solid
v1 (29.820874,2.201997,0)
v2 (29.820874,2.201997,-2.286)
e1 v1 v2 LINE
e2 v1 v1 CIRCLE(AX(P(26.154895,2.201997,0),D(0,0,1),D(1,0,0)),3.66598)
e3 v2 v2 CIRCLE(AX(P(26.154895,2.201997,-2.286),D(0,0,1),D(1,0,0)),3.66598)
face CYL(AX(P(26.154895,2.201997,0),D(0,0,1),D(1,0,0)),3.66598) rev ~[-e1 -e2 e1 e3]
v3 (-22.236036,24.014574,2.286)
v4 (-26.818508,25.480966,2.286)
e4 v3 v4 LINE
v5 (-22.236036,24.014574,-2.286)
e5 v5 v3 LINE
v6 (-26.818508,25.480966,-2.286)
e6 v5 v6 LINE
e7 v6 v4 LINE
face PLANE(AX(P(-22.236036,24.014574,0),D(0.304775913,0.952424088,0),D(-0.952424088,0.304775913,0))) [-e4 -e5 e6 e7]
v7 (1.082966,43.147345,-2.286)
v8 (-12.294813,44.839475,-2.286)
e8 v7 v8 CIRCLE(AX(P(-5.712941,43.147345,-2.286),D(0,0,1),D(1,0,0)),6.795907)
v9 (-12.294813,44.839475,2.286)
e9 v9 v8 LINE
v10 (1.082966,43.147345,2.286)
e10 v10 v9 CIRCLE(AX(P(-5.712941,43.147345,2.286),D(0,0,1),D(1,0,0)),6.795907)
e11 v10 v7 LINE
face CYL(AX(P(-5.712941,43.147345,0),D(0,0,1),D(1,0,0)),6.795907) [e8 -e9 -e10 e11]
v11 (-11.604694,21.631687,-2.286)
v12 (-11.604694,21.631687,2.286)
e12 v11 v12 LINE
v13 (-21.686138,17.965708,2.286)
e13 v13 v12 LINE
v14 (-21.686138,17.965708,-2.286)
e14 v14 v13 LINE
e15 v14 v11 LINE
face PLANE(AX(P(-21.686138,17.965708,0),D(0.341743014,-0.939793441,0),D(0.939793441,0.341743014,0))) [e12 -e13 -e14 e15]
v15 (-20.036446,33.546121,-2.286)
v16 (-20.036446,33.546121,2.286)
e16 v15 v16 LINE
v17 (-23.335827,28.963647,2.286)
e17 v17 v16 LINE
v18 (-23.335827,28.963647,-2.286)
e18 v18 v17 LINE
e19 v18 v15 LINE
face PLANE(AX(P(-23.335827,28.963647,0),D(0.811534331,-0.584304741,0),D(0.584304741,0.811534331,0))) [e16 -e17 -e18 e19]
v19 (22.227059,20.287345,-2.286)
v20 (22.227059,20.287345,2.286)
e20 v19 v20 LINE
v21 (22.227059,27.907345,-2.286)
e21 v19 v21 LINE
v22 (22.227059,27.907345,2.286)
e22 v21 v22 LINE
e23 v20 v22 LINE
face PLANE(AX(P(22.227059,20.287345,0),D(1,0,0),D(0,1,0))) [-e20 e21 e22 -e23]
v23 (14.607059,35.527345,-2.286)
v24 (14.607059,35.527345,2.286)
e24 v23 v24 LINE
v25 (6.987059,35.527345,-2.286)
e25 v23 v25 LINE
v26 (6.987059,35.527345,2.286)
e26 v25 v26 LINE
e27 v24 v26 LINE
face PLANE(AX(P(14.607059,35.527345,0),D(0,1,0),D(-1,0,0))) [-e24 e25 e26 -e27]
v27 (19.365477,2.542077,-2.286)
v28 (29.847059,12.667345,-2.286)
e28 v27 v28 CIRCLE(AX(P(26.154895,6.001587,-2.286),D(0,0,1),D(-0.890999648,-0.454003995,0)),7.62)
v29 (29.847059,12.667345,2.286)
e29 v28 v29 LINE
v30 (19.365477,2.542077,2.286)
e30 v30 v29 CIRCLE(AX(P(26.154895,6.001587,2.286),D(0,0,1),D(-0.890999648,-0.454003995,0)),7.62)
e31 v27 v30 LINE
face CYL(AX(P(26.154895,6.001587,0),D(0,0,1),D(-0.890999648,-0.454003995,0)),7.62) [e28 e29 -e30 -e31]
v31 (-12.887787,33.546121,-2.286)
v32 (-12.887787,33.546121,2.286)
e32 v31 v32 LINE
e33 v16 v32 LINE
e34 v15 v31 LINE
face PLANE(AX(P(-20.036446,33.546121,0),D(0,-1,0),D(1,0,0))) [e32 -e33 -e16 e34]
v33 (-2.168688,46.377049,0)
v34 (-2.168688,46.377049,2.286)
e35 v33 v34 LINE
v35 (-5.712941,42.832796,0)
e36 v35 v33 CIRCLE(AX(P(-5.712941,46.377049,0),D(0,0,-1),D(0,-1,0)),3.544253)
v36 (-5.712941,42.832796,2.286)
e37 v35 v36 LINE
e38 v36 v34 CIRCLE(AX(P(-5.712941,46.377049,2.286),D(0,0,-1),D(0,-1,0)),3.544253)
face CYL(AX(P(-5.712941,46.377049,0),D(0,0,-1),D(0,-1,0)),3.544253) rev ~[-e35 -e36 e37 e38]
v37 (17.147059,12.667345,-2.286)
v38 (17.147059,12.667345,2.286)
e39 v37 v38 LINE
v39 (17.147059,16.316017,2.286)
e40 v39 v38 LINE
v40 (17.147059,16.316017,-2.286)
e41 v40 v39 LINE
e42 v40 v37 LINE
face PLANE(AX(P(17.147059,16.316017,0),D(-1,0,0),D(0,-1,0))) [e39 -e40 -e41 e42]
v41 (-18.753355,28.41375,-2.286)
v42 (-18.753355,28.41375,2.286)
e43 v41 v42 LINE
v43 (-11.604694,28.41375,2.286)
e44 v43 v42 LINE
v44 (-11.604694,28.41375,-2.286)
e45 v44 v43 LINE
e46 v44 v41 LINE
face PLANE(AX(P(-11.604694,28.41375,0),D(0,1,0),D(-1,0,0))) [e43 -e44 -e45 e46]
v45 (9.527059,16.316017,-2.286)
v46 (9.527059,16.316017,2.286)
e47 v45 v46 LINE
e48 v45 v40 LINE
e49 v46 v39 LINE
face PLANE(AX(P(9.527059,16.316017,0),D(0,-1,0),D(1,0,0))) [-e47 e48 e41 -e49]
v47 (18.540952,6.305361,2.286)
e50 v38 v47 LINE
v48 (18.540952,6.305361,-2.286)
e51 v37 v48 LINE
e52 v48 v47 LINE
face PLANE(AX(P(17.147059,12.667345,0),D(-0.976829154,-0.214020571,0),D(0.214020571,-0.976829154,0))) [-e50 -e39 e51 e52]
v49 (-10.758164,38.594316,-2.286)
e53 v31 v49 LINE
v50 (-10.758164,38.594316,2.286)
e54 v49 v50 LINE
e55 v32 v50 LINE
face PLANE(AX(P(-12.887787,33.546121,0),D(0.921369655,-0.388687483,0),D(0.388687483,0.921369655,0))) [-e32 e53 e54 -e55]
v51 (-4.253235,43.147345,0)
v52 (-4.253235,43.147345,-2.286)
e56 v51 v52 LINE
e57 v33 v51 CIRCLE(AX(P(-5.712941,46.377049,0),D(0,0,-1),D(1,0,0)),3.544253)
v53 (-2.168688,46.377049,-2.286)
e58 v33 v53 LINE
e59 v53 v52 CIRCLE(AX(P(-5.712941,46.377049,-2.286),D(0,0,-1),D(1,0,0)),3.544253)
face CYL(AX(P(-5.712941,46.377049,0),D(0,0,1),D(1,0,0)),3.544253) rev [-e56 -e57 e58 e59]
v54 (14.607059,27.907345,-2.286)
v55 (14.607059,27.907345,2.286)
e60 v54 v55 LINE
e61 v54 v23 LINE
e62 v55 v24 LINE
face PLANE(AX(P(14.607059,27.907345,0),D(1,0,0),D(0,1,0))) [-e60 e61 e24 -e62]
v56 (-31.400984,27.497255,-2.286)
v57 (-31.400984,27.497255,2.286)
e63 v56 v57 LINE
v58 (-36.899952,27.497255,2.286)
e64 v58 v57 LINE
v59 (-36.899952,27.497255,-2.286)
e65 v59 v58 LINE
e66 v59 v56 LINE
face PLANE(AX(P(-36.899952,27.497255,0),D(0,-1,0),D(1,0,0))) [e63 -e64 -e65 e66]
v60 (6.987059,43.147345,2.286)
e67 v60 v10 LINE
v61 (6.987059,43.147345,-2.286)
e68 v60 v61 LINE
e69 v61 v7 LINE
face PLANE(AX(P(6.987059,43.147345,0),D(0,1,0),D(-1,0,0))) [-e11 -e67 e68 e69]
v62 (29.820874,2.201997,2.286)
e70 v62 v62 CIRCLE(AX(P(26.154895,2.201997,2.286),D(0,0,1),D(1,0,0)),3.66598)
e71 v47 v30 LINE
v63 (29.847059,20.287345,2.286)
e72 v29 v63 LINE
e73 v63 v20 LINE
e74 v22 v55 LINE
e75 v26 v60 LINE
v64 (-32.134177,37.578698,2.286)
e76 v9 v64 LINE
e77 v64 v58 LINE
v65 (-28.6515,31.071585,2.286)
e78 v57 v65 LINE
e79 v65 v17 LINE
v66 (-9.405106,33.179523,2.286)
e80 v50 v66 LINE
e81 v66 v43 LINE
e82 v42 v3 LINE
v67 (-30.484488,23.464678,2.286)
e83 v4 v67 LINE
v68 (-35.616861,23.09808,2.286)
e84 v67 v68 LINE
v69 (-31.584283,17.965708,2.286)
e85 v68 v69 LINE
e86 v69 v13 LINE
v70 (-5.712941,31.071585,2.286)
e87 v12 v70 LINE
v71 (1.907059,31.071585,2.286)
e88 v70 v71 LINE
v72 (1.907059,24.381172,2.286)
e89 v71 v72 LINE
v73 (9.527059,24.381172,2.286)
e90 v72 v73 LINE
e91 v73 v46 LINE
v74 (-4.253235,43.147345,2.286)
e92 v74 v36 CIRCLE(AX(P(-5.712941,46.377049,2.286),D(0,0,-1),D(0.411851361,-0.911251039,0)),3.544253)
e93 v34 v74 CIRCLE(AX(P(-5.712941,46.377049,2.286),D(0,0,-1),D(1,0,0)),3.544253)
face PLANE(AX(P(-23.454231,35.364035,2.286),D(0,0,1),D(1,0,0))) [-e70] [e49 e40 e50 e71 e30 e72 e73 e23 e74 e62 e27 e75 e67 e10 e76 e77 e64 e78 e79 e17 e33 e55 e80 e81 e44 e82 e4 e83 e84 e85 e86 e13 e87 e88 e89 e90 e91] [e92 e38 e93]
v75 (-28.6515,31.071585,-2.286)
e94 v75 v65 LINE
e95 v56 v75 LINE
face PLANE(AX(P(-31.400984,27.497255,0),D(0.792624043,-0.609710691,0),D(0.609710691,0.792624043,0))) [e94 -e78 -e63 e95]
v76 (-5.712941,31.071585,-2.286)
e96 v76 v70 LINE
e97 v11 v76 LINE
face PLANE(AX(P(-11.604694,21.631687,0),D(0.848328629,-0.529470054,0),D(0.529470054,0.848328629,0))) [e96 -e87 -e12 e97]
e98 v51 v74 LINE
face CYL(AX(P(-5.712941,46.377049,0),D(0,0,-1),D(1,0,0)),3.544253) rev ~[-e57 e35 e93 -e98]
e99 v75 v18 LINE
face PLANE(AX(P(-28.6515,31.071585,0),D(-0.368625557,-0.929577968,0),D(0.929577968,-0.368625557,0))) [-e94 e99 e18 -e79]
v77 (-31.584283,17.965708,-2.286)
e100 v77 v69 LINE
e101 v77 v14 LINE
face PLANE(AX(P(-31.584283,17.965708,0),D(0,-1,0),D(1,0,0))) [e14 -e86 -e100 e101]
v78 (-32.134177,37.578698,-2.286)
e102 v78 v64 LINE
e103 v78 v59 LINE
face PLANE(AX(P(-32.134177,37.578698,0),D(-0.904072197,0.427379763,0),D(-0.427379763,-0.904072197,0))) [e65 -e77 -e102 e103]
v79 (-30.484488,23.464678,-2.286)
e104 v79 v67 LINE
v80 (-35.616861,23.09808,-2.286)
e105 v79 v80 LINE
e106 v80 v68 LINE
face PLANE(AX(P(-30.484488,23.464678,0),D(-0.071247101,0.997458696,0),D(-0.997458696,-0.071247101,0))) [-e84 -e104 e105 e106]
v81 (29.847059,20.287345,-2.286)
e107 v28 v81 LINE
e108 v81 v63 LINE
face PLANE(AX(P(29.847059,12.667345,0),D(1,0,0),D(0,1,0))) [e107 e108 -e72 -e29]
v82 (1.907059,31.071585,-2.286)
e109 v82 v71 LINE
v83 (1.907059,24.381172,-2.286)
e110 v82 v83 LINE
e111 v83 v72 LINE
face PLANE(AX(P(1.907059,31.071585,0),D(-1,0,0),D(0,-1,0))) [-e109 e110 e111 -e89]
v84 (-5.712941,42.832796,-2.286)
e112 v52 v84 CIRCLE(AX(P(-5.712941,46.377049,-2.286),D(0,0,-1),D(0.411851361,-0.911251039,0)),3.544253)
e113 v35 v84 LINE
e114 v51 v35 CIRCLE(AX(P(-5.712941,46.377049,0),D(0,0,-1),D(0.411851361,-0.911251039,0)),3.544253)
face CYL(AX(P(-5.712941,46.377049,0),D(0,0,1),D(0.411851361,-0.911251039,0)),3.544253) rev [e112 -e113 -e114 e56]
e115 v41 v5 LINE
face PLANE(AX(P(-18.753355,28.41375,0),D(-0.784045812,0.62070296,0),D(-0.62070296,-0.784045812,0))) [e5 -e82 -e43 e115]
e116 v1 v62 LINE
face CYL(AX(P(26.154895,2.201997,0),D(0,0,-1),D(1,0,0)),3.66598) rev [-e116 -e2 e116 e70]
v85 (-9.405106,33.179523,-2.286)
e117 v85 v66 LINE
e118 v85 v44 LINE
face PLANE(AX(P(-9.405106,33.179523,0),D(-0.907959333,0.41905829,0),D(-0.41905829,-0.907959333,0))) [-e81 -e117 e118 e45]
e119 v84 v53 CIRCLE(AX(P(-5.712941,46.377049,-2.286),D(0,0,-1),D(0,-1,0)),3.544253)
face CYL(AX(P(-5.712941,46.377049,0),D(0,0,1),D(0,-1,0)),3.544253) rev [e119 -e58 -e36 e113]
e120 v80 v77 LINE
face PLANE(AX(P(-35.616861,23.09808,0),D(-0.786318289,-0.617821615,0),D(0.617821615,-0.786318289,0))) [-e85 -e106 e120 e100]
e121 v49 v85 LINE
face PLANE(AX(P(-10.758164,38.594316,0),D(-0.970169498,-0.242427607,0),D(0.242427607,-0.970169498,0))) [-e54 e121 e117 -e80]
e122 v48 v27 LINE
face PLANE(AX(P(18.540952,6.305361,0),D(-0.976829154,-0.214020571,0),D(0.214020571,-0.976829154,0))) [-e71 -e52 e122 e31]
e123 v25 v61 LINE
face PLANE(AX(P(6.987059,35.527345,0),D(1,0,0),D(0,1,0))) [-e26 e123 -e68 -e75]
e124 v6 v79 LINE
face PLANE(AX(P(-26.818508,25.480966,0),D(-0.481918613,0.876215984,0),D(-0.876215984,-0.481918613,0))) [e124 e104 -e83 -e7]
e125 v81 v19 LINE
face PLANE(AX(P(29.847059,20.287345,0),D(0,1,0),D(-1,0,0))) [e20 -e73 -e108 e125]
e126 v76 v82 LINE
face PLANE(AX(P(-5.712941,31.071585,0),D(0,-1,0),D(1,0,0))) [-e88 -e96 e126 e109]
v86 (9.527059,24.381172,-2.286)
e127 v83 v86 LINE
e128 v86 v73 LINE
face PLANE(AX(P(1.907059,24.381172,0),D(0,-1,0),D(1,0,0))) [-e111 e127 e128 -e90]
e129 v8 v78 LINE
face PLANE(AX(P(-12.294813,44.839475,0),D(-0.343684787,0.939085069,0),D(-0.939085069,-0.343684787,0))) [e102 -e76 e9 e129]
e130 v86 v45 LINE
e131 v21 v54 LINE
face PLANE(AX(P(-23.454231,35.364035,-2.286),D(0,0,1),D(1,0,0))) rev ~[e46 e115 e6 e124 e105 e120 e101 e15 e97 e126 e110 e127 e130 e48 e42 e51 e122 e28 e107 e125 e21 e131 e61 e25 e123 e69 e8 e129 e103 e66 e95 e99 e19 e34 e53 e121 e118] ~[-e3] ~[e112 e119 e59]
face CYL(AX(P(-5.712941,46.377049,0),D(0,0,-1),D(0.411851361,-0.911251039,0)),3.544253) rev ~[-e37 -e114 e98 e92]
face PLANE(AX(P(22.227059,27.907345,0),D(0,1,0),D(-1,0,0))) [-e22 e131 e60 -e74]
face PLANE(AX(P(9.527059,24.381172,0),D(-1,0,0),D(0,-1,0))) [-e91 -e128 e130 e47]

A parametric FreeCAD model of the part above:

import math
import FreeCAD as App
import Part
import Sketcher

V = App.Vector
Q = App.Units.Quantity

doc = App.newDocument("Part")
params = doc.addObject("Spreadsheet::Sheet", "Params")
for row, (alias, value) in enumerate([
    ("sketch1_radius", "0.3 in"),
    ("sketch1_width", "0.3 in"),
    ("pad1_length", "0.09 in"),
    ("pad1_length2", "0.09 in"),
], start=1):
    params.set(f"A{row}", alias)
    params.set(f"B{row}", "=" + value)
    params.setAlias(f"B{row}", alias)

body = doc.addObject("PartDesign::Body", "Body")

sketch1 = body.newObject("Sketcher::SketchObject", "Sketch")
sketch1.AttachmentSupport = (doc.getObject("XY_Plane"), [""])
sketch1.MapMode = "FlatFace"
sketch1.addGeometry([
    Part.LineSegment(V(-12.3, 44.8, 0), V(-32.1, 37.6, 0)),
    Part.LineSegment(V(-32.1, 37.6, 0), V(-36.9, 27.5, 0)),
    Part.LineSegment(V(-36.9, 27.5, 0), V(-31.4, 27.5, 0)),
    Part.LineSegment(V(-31.4, 27.5, 0), V(-28.7, 31.1, 0)),
    Part.LineSegment(V(-28.7, 31.1, 0), V(-23.3, 29, 0)),
    Part.LineSegment(V(-23.3, 29, 0), V(-20, 33.5, 0)),
    Part.LineSegment(V(-20, 33.5, 0), V(-12.9, 33.5, 0)),
    Part.LineSegment(V(-12.9, 33.5, 0), V(-10.8, 38.6, 0)),
    Part.LineSegment(V(-10.8, 38.6, 0), V(-9.4, 33.2, 0)),
    Part.LineSegment(V(-9.4, 33.2, 0), V(-11.6, 28.4, 0)),
    Part.LineSegment(V(-11.6, 28.4, 0), V(-18.8, 28.4, 0)),
    Part.LineSegment(V(-18.8, 28.4, 0), V(-22.2, 24, 0)),
    Part.LineSegment(V(-22.2, 24, 0), V(-26.8, 25.5, 0)),
    Part.LineSegment(V(-26.8, 25.5, 0), V(-30.5, 23.5, 0)),
    Part.LineSegment(V(-30.5, 23.5, 0), V(-35.6, 23.1, 0)),
    Part.LineSegment(V(-35.6, 23.1, 0), V(-31.6, 18, 0)),
    Part.LineSegment(V(-31.6, 18, 0), V(-21.7, 18, 0)),
    Part.LineSegment(V(-21.7, 18, 0), V(-11.6, 21.6, 0)),
    Part.LineSegment(V(-11.6, 21.6, 0), V(-5.7, 31.1, 0)),
    Part.LineSegment(V(-5.7, 31.1, 0), V(1.9, 31.1, 0)),
    Part.LineSegment(V(1.9, 31.1, 0), V(1.9, 24.4, 0)),
    Part.LineSegment(V(1.9, 24.4, 0), V(9.5, 24.4, 0)),
    Part.LineSegment(V(9.5, 24.4, 0), V(9.5, 16.3, 0)),
    Part.LineSegment(V(9.5, 16.3, 0), V(17.1, 16.3, 0)),
    Part.LineSegment(V(17.1, 16.3, 0), V(17.1, 12.7, 0)),
    Part.LineSegment(V(17.1, 12.7, 0), V(18.5, 6.3, 0)),
    Part.LineSegment(V(18.5, 6.3, 0), V(19.4, 2.5, 0)),
    Part.ArcOfCircle(Part.Circle(V(26.2, 6, 0), V(0, 0, 1), 7.6), math.radians(-153), math.radians(61)),
    Part.LineSegment(V(29.8, 12.7, 0), V(29.8, 20.3, 0)),
    Part.LineSegment(V(29.8, 20.3, 0), V(22.2, 20.3, 0)),
    Part.LineSegment(V(22.2, 20.3, 0), V(22.2, 27.9, 0)),
    Part.LineSegment(V(22.2, 27.9, 0), V(14.6, 27.9, 0)),
    Part.LineSegment(V(14.6, 27.9, 0), V(14.6, 35.5, 0)),
    Part.LineSegment(V(14.6, 35.5, 0), V(7, 35.5, 0)),
    Part.LineSegment(V(7, 35.5, 0), V(7, 43.1, 0)),
    Part.LineSegment(V(7, 43.1, 0), V(1.1, 43.1, 0)),
    Part.ArcOfCircle(Part.Circle(V(-5.7, 43.1, 0), V(0, 0, 1), 6.8), math.radians(0), math.radians(166)),
    Part.Circle(V(26.2, 2.2, 0), V(0, 0, 1), 3.7),
    Part.ArcOfCircle(Part.Circle(V(-5.7, 46.4, 0), V(0, 0, 1), 3.5), math.radians(0), math.radians(270)),
    Part.ArcOfCircle(Part.Circle(V(-5.7, 46.4, 0), V(0, 0, 1), 3.5), math.radians(-66), math.radians(0)),
    Part.ArcOfCircle(Part.Circle(V(-5.7, 46.4, 0), V(0, 0, 1), 3.5), math.radians(-90), math.radians(-66)),
], False)
sketch1.addConstraint([
    Sketcher.Constraint("Coincident", 0, 2, 1, 1),
    Sketcher.Constraint("Coincident", 1, 2, 2, 1),
    Sketcher.Constraint("Coincident", 2, 2, 3, 1),
    Sketcher.Constraint("Coincident", 3, 2, 4, 1),
    Sketcher.Constraint("Coincident", 4, 2, 5, 1),
    Sketcher.Constraint("Coincident", 5, 2, 6, 1),
    Sketcher.Constraint("Coincident", 6, 2, 7, 1),
    Sketcher.Constraint("Coincident", 7, 2, 8, 1),
    Sketcher.Constraint("Coincident", 8, 2, 9, 1),
    Sketcher.Constraint("Coincident", 9, 2, 10, 1),
    Sketcher.Constraint("Coincident", 10, 2, 11, 1),
    Sketcher.Constraint("Coincident", 11, 2, 12, 1),
    Sketcher.Constraint("Coincident", 12, 2, 13, 1),
    Sketcher.Constraint("Coincident", 13, 2, 14, 1),
    Sketcher.Constraint("Coincident", 14, 2, 15, 1),
    Sketcher.Constraint("Coincident", 15, 2, 16, 1),
    Sketcher.Constraint("Coincident", 16, 2, 17, 1),
    Sketcher.Constraint("Coincident", 17, 2, 18, 1),
    Sketcher.Constraint("Coincident", 18, 2, 19, 1),
    Sketcher.Constraint("Coincident", 19, 2, 20, 1),
    Sketcher.Constraint("Coincident", 20, 2, 21, 1),
    Sketcher.Constraint("Coincident", 21, 2, 22, 1),
    Sketcher.Constraint("Coincident", 22, 2, 23, 1),
    Sketcher.Constraint("Coincident", 23, 2, 24, 1),
    Sketcher.Constraint("Coincident", 24, 2, 25, 1),
    Sketcher.Constraint("Coincident", 25, 2, 26, 1),
    Sketcher.Constraint("Coincident", 26, 2, 27, 1),
    Sketcher.Constraint("Coincident", 27, 2, 28, 1),
    Sketcher.Constraint("Coincident", 28, 2, 29, 1),
    Sketcher.Constraint("Coincident", 29, 2, 30, 1),
    Sketcher.Constraint("Coincident", 30, 2, 31, 1),
    Sketcher.Constraint("Coincident", 31, 2, 32, 1),
    Sketcher.Constraint("Coincident", 32, 2, 33, 1),
    Sketcher.Constraint("Coincident", 33, 2, 34, 1),
    Sketcher.Constraint("Coincident", 34, 2, 35, 1),
    Sketcher.Constraint("Coincident", 35, 2, 36, 1),
    Sketcher.Constraint("Coincident", 36, 2, 0, 1),
    Sketcher.Constraint("Tangent", 38, 1, 39, 2),
    Sketcher.Constraint("Tangent", 39, 1, 40, 2),
    Sketcher.Constraint("Tangent", 40, 1, 38, 2),
    Sketcher.Constraint("Horizontal", 2),
    Sketcher.Constraint("Horizontal", 6),
    Sketcher.Constraint("Horizontal", 10),
    Sketcher.Constraint("Horizontal", 16),
    Sketcher.Constraint("Horizontal", 19),
    Sketcher.Constraint("Vertical", 20),
    Sketcher.Constraint("Horizontal", 21),
    Sketcher.Constraint("Vertical", 22),
    Sketcher.Constraint("Horizontal", 23),
    Sketcher.Constraint("Vertical", 24),
    Sketcher.Constraint("Vertical", 28),
    Sketcher.Constraint("Horizontal", 29),
    Sketcher.Constraint("Vertical", 30),
    Sketcher.Constraint("Horizontal", 31),
    Sketcher.Constraint("Vertical", 32),
    Sketcher.Constraint("Horizontal", 33),
    Sketcher.Constraint("Vertical", 34),
    Sketcher.Constraint("Horizontal", 35),
    Sketcher.Constraint("Parallel", 25, 26),
    Sketcher.Constraint("Horizontal", 3, 2, 18, 2),
    Sketcher.Constraint("Horizontal", 24, 2, 27, 2),
    Sketcher.Constraint("Horizontal", 36, 3, 34, 2),
    Sketcher.Constraint("Horizontal", 40, 3, 38, 1),
    Sketcher.Constraint("Horizontal", 35, 2, 39, 1),
    Sketcher.Constraint("Vertical", 27, 3, 37, 3),
    Sketcher.Constraint("Vertical", 36, 3, 38, 3),
    Sketcher.Constraint("Vertical", 9, 2, 17, 2),
    Sketcher.Constraint("Vertical", 40, 3, 18, 2),
    Sketcher.Constraint("Vertical", 18, 2, 40, 1),
    Sketcher.Constraint("Equal", 6, 10),
    Sketcher.Constraint("Equal", 19, 21),
    Sketcher.Constraint("Equal", 21, 23),
    Sketcher.Constraint("Equal", 23, 29),
    Sketcher.Constraint("Equal", 29, 31),
    Sketcher.Constraint("Equal", 31, 33),
    Sketcher.Constraint("Equal", 33, 28),
    Sketcher.Constraint("Equal", 28, 30),
    Sketcher.Constraint("Equal", 30, 32),
    Sketcher.Constraint("Equal", 32, 34),
    Sketcher.Constraint("Radius", 27, Q("0.3 in")),
    Sketcher.Constraint("DistanceX", 19, 1, 19, 2, Q("0.3 in")),
    Sketcher.Constraint("DistanceX", 24, 2, 27, 2, Q("0.5 in")),
    Sketcher.Constraint("Diameter", 37, Q("7.331959 mm")),
    Sketcher.Constraint("Radius", 36, Q("6.795907 mm")),
    Sketcher.Constraint("Radius", 38, Q("3.544253 mm")),
    Sketcher.Constraint("DistanceX", 26, 2, 37, 3, Q("0.2672999 in")),
    Sketcher.Constraint("DistanceX", 2, 1, 2, 2, Q("5.498968 mm")),
    Sketcher.Constraint("DistanceX", 6, 1, 6, 2, Q("7.148659 mm")),
    Sketcher.Constraint("DistanceX", 3, 2, -1, 1, Q("28.6515 mm")),
    Sketcher.Constraint("DistanceY", 8, 2, 6, 2, Q("0.366598 mm")),
    Sketcher.Constraint("DistanceY", 14, 2, 13, 2, Q("0.366598 mm")),
    Sketcher.Constraint("DistanceX", 15, 2, 2, 2, Q("0.183299 mm")),
    Sketcher.Constraint("Distance", 0, Q("21.126269 mm")),
    Sketcher.Constraint("Distance", 1, Q("11.151148 mm")),
    Sketcher.Constraint("Distance", 3, Q("4.50949 mm")),
    Sketcher.Constraint("Distance", 4, Q("5.718372 mm")),
    Sketcher.Constraint("Distance", 5, Q("5.646679 mm")),
    Sketcher.Constraint("Distance", 7, Q("5.479011 mm")),
    Sketcher.Constraint("Distance", 14, Q("5.14545 mm")),
    Sketcher.Constraint("Distance", 15, Q("6.527092 mm")),
    Sketcher.Constraint("Distance", 26, Q("3.852551 mm")),
    Sketcher.Constraint("DistanceX", 16, 1, 16, 2, Q("9.898145 mm")),
    Sketcher.Constraint("DistanceY", 20, 2, 20, 1, Q("6.690412 mm")),
    Sketcher.Constraint("DistanceY", 22, 2, 22, 1, Q("8.065155 mm")),
    Sketcher.Constraint("DistanceY", 24, 2, 24, 1, Q("3.648673 mm")),
    Sketcher.Constraint("DistanceX", 36, 3, -1, 1, Q("5.712941 mm")),
    Sketcher.Constraint("DistanceY", -1, 1, 38, 3, Q("46.377049 mm")),
    Sketcher.Constraint("DistanceX", 1, 2, -1, 1, Q("36.899952 mm")),
    Sketcher.Constraint("DistanceY", -1, 1, 5, 2, Q("33.546121 mm")),
    Sketcher.Constraint("DistanceY", -1, 1, 9, 2, Q("28.41375 mm")),
    Sketcher.Constraint("DistanceX", 14, 2, -1, 1, Q("35.616861 mm")),
    Sketcher.Constraint("DistanceY", -1, 1, 14, 2, Q("23.09808 mm")),
    Sketcher.Constraint("DistanceY", -1, 1, 25, 2, Q("6.305361 mm")),
    Sketcher.Constraint("DistanceY", 37, 3, 27, 3, Q("3.79959 mm")),
    Sketcher.Constraint("DistanceY", 27, 3, 38, 3, Q("40.375462 mm")),
    Sketcher.Constraint("DistanceY", 0, 2, 38, 3, Q("8.798351 mm")),
    Sketcher.Constraint("DistanceY", 4, 2, 3, 2, Q("2.107938 mm")),
    Sketcher.Constraint("DistanceY", 7, 2, 36, 3, Q("4.553029 mm")),
    Sketcher.Constraint("DistanceX", 6, 2, 8, 2, Q("3.482681 mm")),
    Sketcher.Constraint("DistanceX", 9, 2, 8, 2, Q("2.199588 mm")),
    Sketcher.Constraint("DistanceX", 4, 2, 11, 2, Q("1.099791 mm")),
    Sketcher.Constraint("DistanceY", 11, 2, 3, 2, Q("7.057011 mm")),
    Sketcher.Constraint("DistanceX", 12, 2, 4, 2, Q("3.482681 mm")),
    Sketcher.Constraint("DistanceY", 12, 2, 4, 2, Q("3.482681 mm")),
    Sketcher.Constraint("DistanceY", 16, 2, 17, 2, Q("3.665979 mm")),
])
sketch1.setExpression("Constraints[79]", "Params.sketch1_radius")
sketch1.setExpression("Constraints[80]", "Params.sketch1_width")
pad1 = body.newObject("PartDesign::Pad", "Pad")
pad1.Profile = sketch1
pad1.Type = "TwoLengths"
pad1.setExpression("Length", "Params.pad1_length")
pad1.setExpression("Length2", "Params.pad1_length2")

doc.recompute()
